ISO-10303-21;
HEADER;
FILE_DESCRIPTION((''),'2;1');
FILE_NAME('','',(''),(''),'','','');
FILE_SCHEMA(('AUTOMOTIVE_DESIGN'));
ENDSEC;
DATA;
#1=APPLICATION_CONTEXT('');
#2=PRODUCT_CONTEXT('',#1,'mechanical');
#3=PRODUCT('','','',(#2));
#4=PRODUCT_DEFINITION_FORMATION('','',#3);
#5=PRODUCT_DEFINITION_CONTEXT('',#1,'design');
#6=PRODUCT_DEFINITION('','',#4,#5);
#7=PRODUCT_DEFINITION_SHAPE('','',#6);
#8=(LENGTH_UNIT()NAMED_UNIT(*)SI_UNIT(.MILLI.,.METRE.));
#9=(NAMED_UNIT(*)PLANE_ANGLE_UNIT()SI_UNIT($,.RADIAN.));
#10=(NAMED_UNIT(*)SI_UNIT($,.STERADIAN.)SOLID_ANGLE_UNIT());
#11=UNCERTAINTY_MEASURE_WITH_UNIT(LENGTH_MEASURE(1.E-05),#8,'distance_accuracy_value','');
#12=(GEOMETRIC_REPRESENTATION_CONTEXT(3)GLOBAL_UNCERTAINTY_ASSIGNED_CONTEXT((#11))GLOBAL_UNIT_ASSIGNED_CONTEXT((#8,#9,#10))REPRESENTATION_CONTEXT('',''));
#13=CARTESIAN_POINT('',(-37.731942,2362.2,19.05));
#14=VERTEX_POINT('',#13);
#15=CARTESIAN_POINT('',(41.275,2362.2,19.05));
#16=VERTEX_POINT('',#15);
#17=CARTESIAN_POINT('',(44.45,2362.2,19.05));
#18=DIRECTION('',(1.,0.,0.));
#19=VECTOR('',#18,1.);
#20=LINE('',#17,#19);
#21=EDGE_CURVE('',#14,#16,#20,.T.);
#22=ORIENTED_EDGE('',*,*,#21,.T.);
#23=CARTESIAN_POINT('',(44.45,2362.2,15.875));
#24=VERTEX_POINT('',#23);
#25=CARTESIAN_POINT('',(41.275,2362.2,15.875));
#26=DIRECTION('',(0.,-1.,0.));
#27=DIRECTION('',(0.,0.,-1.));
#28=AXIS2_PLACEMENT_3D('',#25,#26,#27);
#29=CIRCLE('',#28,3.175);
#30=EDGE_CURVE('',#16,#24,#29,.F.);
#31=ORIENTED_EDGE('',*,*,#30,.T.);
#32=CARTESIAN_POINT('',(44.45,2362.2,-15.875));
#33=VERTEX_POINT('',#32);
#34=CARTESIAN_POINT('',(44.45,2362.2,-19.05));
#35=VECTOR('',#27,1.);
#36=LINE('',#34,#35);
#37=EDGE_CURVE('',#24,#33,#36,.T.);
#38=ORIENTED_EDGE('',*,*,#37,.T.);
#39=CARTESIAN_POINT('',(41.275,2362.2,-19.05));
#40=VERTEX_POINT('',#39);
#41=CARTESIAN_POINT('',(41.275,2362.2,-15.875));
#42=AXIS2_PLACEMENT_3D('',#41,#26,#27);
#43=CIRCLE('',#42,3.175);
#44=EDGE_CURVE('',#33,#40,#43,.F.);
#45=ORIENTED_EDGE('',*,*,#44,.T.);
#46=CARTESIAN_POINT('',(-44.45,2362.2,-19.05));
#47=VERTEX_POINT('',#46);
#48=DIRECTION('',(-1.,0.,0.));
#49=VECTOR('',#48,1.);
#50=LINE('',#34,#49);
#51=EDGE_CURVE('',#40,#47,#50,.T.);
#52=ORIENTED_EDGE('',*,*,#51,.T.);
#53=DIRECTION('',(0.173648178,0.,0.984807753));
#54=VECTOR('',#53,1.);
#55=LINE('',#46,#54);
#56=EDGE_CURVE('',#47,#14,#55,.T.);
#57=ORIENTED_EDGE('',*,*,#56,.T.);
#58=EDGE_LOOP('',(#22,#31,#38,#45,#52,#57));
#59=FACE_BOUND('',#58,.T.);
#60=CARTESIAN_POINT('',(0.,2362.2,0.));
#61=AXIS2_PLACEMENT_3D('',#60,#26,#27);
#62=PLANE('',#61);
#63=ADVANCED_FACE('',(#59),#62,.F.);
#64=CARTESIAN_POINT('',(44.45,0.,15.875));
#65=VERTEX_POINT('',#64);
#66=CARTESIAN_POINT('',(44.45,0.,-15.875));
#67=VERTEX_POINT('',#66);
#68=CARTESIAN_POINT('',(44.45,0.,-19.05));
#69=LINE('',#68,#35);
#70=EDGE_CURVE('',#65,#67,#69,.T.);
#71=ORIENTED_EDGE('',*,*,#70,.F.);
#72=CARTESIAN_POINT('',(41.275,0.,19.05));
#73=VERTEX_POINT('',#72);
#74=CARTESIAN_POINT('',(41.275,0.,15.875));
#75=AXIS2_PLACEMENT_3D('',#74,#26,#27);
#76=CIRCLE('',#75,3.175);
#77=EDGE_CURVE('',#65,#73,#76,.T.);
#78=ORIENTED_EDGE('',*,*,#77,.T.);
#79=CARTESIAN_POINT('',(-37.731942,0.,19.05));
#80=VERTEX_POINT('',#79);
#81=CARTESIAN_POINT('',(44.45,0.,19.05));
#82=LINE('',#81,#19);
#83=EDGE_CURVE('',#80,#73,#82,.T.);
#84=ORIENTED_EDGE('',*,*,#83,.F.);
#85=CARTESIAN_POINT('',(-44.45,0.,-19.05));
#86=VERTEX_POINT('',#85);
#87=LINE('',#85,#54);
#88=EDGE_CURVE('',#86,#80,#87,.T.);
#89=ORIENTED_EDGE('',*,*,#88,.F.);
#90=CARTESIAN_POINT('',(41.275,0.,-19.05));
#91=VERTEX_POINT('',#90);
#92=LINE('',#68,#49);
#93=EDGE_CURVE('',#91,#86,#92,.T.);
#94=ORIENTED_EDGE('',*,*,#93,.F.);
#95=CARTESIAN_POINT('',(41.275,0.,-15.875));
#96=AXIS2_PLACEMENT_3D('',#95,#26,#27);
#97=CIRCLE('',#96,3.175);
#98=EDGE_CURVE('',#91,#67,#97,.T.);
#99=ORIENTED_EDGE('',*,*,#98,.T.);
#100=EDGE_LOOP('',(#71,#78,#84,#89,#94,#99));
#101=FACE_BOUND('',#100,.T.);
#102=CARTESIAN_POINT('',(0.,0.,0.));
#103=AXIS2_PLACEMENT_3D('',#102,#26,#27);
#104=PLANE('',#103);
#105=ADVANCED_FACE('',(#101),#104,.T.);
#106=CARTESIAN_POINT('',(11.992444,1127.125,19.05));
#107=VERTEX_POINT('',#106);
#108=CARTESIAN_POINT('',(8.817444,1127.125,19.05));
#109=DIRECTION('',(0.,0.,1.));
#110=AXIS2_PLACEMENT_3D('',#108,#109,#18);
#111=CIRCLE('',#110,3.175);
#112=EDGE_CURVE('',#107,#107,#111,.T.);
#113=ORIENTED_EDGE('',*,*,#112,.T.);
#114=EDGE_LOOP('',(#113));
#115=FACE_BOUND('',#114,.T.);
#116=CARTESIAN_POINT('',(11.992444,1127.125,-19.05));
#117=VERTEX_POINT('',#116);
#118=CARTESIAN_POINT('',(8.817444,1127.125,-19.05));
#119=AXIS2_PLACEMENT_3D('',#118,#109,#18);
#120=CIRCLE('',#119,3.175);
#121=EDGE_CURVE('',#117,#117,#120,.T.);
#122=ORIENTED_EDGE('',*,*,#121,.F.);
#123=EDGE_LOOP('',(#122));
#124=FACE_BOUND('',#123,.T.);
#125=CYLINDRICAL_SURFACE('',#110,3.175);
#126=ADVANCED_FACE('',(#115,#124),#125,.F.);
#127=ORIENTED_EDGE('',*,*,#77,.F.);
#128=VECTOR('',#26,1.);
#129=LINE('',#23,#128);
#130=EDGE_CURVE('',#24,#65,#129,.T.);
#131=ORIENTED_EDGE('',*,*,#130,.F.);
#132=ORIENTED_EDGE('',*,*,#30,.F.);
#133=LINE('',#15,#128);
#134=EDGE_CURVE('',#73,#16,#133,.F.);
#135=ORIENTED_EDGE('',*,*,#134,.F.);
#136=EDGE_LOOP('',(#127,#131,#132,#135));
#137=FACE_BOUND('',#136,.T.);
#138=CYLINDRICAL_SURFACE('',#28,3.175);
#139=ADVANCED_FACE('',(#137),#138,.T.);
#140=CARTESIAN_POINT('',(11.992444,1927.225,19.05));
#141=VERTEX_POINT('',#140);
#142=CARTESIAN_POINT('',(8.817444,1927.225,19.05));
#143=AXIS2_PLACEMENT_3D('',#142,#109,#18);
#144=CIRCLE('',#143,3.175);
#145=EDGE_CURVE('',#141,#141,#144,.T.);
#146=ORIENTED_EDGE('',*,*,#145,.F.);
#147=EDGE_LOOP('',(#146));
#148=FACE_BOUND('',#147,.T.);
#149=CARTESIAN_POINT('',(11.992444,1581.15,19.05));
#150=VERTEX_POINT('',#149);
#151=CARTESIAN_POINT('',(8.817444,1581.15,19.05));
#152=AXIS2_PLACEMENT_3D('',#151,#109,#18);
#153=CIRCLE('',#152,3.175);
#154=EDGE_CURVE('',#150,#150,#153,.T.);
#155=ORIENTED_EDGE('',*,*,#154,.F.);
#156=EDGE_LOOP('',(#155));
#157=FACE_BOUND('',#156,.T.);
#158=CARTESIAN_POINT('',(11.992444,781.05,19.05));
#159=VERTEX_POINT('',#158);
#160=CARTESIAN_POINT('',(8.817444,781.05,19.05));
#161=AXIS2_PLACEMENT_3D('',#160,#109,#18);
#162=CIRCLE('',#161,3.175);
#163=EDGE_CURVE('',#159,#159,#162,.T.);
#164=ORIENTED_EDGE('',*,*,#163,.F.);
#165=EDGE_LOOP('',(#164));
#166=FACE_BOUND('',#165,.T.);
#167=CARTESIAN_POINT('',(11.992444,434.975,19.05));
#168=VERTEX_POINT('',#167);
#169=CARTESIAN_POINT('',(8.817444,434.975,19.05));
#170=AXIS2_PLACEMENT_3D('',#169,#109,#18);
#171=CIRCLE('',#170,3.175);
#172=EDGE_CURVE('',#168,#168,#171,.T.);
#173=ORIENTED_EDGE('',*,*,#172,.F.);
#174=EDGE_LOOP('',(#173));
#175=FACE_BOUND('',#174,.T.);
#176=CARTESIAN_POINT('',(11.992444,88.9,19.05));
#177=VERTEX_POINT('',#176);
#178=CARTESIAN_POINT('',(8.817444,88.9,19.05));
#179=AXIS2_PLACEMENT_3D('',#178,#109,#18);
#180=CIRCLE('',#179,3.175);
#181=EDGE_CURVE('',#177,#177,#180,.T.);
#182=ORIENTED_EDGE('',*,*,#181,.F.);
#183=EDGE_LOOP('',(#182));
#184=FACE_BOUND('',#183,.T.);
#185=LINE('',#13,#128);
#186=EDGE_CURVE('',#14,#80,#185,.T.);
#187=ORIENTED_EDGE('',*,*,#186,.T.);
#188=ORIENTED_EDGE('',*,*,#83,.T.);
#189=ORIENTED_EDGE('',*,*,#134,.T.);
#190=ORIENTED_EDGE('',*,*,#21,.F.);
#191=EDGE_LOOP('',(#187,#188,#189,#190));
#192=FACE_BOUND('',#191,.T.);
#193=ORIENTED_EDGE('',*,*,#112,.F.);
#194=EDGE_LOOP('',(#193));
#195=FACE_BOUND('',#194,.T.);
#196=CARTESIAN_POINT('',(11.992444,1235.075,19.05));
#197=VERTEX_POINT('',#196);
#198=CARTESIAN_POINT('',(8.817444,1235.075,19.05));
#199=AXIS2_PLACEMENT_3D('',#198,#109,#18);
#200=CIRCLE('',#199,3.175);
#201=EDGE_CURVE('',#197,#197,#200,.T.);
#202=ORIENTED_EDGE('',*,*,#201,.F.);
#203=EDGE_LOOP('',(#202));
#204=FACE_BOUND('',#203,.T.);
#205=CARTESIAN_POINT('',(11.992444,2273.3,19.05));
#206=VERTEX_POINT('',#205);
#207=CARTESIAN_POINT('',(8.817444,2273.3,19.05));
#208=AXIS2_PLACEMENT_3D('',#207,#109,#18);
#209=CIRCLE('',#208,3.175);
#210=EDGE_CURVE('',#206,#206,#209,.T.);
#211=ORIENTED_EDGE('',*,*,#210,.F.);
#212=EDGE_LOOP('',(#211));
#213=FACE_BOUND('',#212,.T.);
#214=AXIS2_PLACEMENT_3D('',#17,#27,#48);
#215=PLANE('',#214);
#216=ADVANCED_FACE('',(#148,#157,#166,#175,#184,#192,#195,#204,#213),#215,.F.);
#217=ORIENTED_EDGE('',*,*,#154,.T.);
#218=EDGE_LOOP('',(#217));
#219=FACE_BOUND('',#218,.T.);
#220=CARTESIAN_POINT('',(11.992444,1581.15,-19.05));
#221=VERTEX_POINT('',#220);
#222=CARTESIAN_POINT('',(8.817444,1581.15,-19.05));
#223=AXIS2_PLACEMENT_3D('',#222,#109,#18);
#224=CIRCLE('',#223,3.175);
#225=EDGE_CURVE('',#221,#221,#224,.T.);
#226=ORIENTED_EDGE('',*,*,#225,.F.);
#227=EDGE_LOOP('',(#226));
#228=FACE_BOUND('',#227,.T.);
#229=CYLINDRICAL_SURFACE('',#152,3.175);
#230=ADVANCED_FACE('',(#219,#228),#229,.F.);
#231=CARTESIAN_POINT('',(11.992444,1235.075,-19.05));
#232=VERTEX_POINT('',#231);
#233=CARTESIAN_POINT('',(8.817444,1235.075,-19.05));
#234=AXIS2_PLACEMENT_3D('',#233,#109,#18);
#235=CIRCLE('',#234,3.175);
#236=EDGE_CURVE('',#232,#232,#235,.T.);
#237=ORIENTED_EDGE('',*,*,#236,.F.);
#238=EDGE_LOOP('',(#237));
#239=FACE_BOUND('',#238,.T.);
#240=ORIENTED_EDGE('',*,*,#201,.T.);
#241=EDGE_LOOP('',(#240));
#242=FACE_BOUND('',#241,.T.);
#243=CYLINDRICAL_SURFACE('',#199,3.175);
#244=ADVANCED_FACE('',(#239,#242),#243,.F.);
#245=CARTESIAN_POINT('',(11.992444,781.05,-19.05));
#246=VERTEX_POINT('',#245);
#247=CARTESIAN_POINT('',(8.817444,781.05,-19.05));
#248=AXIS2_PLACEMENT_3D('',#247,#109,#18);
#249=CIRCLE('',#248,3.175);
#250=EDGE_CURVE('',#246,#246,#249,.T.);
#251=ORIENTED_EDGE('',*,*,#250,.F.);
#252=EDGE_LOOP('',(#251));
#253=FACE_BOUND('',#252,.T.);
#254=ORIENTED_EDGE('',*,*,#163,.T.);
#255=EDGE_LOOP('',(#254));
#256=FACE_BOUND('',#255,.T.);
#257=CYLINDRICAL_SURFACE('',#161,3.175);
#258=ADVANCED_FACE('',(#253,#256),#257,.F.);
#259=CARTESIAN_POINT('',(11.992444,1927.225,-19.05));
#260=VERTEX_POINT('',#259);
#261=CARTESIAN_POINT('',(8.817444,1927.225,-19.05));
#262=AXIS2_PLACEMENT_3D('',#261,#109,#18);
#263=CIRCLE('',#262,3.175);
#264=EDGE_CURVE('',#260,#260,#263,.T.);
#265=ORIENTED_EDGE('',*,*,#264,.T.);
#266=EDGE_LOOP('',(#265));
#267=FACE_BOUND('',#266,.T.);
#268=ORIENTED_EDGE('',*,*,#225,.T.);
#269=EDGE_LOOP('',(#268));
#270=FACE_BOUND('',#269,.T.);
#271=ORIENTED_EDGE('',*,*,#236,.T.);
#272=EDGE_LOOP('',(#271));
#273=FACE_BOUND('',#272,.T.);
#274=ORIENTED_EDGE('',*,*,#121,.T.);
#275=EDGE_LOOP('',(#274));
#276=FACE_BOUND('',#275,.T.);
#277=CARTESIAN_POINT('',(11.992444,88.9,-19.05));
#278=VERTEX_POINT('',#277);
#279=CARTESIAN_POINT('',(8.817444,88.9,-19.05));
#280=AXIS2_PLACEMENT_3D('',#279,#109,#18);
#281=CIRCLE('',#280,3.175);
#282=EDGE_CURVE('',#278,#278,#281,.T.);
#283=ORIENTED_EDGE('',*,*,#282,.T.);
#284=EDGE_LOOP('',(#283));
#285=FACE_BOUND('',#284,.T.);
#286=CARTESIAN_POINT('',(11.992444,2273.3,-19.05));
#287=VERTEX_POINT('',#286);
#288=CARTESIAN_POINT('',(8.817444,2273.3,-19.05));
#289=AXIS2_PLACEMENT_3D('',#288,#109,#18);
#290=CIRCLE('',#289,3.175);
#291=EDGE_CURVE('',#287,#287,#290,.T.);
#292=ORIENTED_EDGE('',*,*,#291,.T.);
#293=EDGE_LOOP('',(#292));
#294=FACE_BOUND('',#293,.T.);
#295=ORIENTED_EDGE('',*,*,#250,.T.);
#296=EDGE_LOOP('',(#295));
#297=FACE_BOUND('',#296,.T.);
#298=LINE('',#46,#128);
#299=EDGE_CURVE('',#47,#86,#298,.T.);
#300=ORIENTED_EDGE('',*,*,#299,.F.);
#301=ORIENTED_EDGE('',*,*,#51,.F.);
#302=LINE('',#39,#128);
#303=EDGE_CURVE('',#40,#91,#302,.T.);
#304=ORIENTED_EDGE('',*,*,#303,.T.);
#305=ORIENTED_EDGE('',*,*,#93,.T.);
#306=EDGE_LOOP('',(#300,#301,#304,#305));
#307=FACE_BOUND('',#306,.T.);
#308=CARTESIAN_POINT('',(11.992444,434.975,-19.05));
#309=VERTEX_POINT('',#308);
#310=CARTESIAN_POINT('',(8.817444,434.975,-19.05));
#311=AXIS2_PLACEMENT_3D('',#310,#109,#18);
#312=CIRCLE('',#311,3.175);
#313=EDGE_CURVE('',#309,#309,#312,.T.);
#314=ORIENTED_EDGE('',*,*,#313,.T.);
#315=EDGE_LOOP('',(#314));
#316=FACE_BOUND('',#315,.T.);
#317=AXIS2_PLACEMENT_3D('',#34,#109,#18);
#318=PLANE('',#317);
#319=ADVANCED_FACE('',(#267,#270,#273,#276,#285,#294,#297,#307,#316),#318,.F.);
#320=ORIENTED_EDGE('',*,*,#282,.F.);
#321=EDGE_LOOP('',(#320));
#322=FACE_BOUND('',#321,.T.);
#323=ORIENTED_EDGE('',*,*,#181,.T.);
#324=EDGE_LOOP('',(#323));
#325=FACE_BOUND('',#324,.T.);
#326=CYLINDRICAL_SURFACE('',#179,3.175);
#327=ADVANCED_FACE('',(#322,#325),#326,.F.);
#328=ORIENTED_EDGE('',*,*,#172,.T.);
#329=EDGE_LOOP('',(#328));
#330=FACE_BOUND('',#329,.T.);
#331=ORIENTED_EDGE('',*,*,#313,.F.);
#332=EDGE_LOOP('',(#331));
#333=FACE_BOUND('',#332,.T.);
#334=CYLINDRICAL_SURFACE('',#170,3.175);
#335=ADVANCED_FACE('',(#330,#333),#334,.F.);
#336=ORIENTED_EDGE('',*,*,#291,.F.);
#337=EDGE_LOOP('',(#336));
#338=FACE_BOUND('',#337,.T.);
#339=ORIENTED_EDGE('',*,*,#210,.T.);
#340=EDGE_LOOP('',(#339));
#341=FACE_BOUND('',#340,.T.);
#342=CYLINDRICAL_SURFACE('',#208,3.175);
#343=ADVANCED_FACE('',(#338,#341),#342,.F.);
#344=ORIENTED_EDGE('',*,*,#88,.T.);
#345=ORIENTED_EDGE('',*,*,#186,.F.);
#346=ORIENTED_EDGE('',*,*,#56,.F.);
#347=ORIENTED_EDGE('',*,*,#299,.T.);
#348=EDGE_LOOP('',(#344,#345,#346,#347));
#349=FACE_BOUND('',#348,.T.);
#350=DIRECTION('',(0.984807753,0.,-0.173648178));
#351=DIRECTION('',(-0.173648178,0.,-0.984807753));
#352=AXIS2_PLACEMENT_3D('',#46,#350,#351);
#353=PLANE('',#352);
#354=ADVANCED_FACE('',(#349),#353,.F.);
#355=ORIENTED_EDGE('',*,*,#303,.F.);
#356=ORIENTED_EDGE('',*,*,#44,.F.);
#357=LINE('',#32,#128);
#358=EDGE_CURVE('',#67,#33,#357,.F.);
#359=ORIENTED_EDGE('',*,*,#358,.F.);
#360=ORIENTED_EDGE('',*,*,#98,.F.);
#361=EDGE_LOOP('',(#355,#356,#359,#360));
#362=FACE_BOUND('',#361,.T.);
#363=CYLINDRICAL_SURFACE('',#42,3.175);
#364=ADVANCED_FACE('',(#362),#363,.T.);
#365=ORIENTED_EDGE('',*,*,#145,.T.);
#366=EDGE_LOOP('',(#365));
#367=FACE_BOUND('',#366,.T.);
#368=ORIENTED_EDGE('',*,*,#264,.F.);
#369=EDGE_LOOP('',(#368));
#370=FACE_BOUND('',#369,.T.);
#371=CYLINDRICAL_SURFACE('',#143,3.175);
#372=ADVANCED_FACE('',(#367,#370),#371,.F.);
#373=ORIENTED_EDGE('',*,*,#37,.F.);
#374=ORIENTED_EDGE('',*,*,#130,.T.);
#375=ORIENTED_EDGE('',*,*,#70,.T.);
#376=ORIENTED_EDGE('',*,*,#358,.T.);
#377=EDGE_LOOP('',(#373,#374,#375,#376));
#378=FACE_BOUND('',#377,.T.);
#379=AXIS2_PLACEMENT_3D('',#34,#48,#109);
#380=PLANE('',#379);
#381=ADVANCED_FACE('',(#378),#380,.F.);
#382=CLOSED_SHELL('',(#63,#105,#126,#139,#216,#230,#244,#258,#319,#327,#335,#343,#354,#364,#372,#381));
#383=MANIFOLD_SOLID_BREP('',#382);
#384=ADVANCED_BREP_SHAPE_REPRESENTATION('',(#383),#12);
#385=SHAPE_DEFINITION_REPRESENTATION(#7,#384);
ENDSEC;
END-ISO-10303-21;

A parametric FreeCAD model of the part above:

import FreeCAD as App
import Part
import Sketcher

V = App.Vector
Q = App.Units.Quantity


def edges_at(feature, points):
    """Names of the edges that pass closest to the given points."""
    edges = feature.Shape.Edges
    near = lambda p: min(range(len(edges)), key=lambda i: edges[i].distToShape(Part.Vertex(*p))[0])
    return sorted({f"Edge{near(p) + 1}" for p in points})

doc = App.newDocument("Part")
body = doc.addObject("PartDesign::Body", "Body")

sketch1 = doc.addObject("Sketcher::SketchObject", "Sketch")
body.addObject(sketch1)
sketch1.AttachmentSupport = (doc.XZ_Plane, [""])
sketch1.MapMode = "FlatFace"
sketch1.addGeometry([
    Part.LineSegment(V(-44.45, -19.05, 0), V(-37.731942, 19.05, 0)),
    Part.LineSegment(V(-37.731942, 19.05, 0), V(44.45, 19.05, 0)),
    Part.LineSegment(V(44.45, 19.05, 0), V(44.45, -19.05, 0)),
    Part.LineSegment(V(44.45, -19.05, 0), V(-44.45, -19.05, 0)),
], False)
sketch1.addConstraint([
    Sketcher.Constraint("Coincident", 0, 2, 1, 1),
    Sketcher.Constraint("Coincident", 1, 2, 2, 1),
    Sketcher.Constraint("Coincident", 2, 2, 3, 1),
    Sketcher.Constraint("Coincident", 3, 2, 0, 1),
    Sketcher.Constraint("Horizontal", 1),
    Sketcher.Constraint("Vertical", 2),
    Sketcher.Constraint("Horizontal", 3),
    Sketcher.Constraint("Symmetric", 1, 2, 3, 2, -1, 1),
    Sketcher.Constraint("DistanceX", 3, 2, 3, 1, Q("3.5 in")),
    Sketcher.Constraint("DistanceY", 2, 2, 2, 1, Q("1.5 in")),
    Sketcher.Constraint("Angle", 0, Q("80 deg")),
])
pad1 = doc.addObject("PartDesign::Pad", "Pad")
body.addObject(pad1)
pad1.Profile = sketch1
pad1.Length = Q("93 in")
pad1.Reversed = True

sketch2 = doc.addObject("Sketcher::SketchObject", "Sketch001")
body.addObject(sketch2)
sketch2.AttachmentSupport = (doc.XY_Plane, [""])
sketch2.MapMode = "FlatFace"
sketch2.AttachmentOffset = App.Placement(V(0, 0, 0.75 * 25.4), App.Rotation())
sketch2.addGeometry([
    Part.Circle(V(8.817444, 88.9, 0), V(0, 0, 1), 3.175),
    Part.Circle(V(8.817444, 434.975, 0), V(0, 0, 1), 3.175),
    Part.Circle(V(8.817444, 781.05, 0), V(0, 0, 1), 3.175),
    Part.Circle(V(8.817444, 1127.125, 0), V(0, 0, 1), 3.175),
], False)
sketch2.addConstraint([
    Sketcher.Constraint("Equal", 0, 1),
    Sketcher.Constraint("Equal", 1, 2),
    Sketcher.Constraint("Equal", 2, 3),
    Sketcher.Constraint("Vertical", 0, 3, 1, 3),
    Sketcher.Constraint("Vertical", 1, 3, 2, 3),
    Sketcher.Constraint("Vertical", 2, 3, 3, 3),
    Sketcher.Constraint("Diameter", 0, Q("0.25 in")),
    Sketcher.Constraint("DistanceY", -1, 1, 0, 3, Q("3.5 in")),
    Sketcher.Constraint("DistanceY", -1, 1, 2, 3, Q("30.75 in")),
    Sketcher.Constraint("DistanceY", 1, 3, 3, 3, Q("27.25 in")),
    Sketcher.Constraint("DistanceY", -1, 1, 1, 3, Q("17.125 in")),
    Sketcher.Constraint("DistanceX", -1, 1, 0, 3, Q("8.817444 mm")),
])
doc.recompute()
hole = doc.addObject("PartDesign::Hole", "Hole")
body.addObject(hole)
hole.Profile = sketch2
hole.ThreadType = "None"
hole.Diameter = Q("0.25 in")
hole.DepthType = "ThroughAll"
doc.recompute()

fillet = doc.addObject("PartDesign::Fillet", "Fillet")
body.addObject(fillet)
fillet.Base = (hole, edges_at(hole, [(44.45, 1181.1, 19.05), (44.45, 1181.1, -19.05)]))
fillet.Radius = Q("0.125 in")
doc.recompute()

datumplane = doc.addObject("PartDesign::Plane", "DatumPlane")
body.addObject(datumplane)
datumplane.AttachmentSupport = (doc.XZ_Plane, [""])
datumplane.MapMode = "FlatFace"
datumplane.AttachmentOffset = App.Placement(V(0, 0, -46.5 * 25.4), App.Rotation())
mirrored = doc.addObject("PartDesign::Mirrored", "Mirrored")
body.addObject(mirrored)
mirrored.Originals = [hole]
mirrored.MirrorPlane = (datumplane, [""])
body.Tip = mirrored

doc.recompute()
